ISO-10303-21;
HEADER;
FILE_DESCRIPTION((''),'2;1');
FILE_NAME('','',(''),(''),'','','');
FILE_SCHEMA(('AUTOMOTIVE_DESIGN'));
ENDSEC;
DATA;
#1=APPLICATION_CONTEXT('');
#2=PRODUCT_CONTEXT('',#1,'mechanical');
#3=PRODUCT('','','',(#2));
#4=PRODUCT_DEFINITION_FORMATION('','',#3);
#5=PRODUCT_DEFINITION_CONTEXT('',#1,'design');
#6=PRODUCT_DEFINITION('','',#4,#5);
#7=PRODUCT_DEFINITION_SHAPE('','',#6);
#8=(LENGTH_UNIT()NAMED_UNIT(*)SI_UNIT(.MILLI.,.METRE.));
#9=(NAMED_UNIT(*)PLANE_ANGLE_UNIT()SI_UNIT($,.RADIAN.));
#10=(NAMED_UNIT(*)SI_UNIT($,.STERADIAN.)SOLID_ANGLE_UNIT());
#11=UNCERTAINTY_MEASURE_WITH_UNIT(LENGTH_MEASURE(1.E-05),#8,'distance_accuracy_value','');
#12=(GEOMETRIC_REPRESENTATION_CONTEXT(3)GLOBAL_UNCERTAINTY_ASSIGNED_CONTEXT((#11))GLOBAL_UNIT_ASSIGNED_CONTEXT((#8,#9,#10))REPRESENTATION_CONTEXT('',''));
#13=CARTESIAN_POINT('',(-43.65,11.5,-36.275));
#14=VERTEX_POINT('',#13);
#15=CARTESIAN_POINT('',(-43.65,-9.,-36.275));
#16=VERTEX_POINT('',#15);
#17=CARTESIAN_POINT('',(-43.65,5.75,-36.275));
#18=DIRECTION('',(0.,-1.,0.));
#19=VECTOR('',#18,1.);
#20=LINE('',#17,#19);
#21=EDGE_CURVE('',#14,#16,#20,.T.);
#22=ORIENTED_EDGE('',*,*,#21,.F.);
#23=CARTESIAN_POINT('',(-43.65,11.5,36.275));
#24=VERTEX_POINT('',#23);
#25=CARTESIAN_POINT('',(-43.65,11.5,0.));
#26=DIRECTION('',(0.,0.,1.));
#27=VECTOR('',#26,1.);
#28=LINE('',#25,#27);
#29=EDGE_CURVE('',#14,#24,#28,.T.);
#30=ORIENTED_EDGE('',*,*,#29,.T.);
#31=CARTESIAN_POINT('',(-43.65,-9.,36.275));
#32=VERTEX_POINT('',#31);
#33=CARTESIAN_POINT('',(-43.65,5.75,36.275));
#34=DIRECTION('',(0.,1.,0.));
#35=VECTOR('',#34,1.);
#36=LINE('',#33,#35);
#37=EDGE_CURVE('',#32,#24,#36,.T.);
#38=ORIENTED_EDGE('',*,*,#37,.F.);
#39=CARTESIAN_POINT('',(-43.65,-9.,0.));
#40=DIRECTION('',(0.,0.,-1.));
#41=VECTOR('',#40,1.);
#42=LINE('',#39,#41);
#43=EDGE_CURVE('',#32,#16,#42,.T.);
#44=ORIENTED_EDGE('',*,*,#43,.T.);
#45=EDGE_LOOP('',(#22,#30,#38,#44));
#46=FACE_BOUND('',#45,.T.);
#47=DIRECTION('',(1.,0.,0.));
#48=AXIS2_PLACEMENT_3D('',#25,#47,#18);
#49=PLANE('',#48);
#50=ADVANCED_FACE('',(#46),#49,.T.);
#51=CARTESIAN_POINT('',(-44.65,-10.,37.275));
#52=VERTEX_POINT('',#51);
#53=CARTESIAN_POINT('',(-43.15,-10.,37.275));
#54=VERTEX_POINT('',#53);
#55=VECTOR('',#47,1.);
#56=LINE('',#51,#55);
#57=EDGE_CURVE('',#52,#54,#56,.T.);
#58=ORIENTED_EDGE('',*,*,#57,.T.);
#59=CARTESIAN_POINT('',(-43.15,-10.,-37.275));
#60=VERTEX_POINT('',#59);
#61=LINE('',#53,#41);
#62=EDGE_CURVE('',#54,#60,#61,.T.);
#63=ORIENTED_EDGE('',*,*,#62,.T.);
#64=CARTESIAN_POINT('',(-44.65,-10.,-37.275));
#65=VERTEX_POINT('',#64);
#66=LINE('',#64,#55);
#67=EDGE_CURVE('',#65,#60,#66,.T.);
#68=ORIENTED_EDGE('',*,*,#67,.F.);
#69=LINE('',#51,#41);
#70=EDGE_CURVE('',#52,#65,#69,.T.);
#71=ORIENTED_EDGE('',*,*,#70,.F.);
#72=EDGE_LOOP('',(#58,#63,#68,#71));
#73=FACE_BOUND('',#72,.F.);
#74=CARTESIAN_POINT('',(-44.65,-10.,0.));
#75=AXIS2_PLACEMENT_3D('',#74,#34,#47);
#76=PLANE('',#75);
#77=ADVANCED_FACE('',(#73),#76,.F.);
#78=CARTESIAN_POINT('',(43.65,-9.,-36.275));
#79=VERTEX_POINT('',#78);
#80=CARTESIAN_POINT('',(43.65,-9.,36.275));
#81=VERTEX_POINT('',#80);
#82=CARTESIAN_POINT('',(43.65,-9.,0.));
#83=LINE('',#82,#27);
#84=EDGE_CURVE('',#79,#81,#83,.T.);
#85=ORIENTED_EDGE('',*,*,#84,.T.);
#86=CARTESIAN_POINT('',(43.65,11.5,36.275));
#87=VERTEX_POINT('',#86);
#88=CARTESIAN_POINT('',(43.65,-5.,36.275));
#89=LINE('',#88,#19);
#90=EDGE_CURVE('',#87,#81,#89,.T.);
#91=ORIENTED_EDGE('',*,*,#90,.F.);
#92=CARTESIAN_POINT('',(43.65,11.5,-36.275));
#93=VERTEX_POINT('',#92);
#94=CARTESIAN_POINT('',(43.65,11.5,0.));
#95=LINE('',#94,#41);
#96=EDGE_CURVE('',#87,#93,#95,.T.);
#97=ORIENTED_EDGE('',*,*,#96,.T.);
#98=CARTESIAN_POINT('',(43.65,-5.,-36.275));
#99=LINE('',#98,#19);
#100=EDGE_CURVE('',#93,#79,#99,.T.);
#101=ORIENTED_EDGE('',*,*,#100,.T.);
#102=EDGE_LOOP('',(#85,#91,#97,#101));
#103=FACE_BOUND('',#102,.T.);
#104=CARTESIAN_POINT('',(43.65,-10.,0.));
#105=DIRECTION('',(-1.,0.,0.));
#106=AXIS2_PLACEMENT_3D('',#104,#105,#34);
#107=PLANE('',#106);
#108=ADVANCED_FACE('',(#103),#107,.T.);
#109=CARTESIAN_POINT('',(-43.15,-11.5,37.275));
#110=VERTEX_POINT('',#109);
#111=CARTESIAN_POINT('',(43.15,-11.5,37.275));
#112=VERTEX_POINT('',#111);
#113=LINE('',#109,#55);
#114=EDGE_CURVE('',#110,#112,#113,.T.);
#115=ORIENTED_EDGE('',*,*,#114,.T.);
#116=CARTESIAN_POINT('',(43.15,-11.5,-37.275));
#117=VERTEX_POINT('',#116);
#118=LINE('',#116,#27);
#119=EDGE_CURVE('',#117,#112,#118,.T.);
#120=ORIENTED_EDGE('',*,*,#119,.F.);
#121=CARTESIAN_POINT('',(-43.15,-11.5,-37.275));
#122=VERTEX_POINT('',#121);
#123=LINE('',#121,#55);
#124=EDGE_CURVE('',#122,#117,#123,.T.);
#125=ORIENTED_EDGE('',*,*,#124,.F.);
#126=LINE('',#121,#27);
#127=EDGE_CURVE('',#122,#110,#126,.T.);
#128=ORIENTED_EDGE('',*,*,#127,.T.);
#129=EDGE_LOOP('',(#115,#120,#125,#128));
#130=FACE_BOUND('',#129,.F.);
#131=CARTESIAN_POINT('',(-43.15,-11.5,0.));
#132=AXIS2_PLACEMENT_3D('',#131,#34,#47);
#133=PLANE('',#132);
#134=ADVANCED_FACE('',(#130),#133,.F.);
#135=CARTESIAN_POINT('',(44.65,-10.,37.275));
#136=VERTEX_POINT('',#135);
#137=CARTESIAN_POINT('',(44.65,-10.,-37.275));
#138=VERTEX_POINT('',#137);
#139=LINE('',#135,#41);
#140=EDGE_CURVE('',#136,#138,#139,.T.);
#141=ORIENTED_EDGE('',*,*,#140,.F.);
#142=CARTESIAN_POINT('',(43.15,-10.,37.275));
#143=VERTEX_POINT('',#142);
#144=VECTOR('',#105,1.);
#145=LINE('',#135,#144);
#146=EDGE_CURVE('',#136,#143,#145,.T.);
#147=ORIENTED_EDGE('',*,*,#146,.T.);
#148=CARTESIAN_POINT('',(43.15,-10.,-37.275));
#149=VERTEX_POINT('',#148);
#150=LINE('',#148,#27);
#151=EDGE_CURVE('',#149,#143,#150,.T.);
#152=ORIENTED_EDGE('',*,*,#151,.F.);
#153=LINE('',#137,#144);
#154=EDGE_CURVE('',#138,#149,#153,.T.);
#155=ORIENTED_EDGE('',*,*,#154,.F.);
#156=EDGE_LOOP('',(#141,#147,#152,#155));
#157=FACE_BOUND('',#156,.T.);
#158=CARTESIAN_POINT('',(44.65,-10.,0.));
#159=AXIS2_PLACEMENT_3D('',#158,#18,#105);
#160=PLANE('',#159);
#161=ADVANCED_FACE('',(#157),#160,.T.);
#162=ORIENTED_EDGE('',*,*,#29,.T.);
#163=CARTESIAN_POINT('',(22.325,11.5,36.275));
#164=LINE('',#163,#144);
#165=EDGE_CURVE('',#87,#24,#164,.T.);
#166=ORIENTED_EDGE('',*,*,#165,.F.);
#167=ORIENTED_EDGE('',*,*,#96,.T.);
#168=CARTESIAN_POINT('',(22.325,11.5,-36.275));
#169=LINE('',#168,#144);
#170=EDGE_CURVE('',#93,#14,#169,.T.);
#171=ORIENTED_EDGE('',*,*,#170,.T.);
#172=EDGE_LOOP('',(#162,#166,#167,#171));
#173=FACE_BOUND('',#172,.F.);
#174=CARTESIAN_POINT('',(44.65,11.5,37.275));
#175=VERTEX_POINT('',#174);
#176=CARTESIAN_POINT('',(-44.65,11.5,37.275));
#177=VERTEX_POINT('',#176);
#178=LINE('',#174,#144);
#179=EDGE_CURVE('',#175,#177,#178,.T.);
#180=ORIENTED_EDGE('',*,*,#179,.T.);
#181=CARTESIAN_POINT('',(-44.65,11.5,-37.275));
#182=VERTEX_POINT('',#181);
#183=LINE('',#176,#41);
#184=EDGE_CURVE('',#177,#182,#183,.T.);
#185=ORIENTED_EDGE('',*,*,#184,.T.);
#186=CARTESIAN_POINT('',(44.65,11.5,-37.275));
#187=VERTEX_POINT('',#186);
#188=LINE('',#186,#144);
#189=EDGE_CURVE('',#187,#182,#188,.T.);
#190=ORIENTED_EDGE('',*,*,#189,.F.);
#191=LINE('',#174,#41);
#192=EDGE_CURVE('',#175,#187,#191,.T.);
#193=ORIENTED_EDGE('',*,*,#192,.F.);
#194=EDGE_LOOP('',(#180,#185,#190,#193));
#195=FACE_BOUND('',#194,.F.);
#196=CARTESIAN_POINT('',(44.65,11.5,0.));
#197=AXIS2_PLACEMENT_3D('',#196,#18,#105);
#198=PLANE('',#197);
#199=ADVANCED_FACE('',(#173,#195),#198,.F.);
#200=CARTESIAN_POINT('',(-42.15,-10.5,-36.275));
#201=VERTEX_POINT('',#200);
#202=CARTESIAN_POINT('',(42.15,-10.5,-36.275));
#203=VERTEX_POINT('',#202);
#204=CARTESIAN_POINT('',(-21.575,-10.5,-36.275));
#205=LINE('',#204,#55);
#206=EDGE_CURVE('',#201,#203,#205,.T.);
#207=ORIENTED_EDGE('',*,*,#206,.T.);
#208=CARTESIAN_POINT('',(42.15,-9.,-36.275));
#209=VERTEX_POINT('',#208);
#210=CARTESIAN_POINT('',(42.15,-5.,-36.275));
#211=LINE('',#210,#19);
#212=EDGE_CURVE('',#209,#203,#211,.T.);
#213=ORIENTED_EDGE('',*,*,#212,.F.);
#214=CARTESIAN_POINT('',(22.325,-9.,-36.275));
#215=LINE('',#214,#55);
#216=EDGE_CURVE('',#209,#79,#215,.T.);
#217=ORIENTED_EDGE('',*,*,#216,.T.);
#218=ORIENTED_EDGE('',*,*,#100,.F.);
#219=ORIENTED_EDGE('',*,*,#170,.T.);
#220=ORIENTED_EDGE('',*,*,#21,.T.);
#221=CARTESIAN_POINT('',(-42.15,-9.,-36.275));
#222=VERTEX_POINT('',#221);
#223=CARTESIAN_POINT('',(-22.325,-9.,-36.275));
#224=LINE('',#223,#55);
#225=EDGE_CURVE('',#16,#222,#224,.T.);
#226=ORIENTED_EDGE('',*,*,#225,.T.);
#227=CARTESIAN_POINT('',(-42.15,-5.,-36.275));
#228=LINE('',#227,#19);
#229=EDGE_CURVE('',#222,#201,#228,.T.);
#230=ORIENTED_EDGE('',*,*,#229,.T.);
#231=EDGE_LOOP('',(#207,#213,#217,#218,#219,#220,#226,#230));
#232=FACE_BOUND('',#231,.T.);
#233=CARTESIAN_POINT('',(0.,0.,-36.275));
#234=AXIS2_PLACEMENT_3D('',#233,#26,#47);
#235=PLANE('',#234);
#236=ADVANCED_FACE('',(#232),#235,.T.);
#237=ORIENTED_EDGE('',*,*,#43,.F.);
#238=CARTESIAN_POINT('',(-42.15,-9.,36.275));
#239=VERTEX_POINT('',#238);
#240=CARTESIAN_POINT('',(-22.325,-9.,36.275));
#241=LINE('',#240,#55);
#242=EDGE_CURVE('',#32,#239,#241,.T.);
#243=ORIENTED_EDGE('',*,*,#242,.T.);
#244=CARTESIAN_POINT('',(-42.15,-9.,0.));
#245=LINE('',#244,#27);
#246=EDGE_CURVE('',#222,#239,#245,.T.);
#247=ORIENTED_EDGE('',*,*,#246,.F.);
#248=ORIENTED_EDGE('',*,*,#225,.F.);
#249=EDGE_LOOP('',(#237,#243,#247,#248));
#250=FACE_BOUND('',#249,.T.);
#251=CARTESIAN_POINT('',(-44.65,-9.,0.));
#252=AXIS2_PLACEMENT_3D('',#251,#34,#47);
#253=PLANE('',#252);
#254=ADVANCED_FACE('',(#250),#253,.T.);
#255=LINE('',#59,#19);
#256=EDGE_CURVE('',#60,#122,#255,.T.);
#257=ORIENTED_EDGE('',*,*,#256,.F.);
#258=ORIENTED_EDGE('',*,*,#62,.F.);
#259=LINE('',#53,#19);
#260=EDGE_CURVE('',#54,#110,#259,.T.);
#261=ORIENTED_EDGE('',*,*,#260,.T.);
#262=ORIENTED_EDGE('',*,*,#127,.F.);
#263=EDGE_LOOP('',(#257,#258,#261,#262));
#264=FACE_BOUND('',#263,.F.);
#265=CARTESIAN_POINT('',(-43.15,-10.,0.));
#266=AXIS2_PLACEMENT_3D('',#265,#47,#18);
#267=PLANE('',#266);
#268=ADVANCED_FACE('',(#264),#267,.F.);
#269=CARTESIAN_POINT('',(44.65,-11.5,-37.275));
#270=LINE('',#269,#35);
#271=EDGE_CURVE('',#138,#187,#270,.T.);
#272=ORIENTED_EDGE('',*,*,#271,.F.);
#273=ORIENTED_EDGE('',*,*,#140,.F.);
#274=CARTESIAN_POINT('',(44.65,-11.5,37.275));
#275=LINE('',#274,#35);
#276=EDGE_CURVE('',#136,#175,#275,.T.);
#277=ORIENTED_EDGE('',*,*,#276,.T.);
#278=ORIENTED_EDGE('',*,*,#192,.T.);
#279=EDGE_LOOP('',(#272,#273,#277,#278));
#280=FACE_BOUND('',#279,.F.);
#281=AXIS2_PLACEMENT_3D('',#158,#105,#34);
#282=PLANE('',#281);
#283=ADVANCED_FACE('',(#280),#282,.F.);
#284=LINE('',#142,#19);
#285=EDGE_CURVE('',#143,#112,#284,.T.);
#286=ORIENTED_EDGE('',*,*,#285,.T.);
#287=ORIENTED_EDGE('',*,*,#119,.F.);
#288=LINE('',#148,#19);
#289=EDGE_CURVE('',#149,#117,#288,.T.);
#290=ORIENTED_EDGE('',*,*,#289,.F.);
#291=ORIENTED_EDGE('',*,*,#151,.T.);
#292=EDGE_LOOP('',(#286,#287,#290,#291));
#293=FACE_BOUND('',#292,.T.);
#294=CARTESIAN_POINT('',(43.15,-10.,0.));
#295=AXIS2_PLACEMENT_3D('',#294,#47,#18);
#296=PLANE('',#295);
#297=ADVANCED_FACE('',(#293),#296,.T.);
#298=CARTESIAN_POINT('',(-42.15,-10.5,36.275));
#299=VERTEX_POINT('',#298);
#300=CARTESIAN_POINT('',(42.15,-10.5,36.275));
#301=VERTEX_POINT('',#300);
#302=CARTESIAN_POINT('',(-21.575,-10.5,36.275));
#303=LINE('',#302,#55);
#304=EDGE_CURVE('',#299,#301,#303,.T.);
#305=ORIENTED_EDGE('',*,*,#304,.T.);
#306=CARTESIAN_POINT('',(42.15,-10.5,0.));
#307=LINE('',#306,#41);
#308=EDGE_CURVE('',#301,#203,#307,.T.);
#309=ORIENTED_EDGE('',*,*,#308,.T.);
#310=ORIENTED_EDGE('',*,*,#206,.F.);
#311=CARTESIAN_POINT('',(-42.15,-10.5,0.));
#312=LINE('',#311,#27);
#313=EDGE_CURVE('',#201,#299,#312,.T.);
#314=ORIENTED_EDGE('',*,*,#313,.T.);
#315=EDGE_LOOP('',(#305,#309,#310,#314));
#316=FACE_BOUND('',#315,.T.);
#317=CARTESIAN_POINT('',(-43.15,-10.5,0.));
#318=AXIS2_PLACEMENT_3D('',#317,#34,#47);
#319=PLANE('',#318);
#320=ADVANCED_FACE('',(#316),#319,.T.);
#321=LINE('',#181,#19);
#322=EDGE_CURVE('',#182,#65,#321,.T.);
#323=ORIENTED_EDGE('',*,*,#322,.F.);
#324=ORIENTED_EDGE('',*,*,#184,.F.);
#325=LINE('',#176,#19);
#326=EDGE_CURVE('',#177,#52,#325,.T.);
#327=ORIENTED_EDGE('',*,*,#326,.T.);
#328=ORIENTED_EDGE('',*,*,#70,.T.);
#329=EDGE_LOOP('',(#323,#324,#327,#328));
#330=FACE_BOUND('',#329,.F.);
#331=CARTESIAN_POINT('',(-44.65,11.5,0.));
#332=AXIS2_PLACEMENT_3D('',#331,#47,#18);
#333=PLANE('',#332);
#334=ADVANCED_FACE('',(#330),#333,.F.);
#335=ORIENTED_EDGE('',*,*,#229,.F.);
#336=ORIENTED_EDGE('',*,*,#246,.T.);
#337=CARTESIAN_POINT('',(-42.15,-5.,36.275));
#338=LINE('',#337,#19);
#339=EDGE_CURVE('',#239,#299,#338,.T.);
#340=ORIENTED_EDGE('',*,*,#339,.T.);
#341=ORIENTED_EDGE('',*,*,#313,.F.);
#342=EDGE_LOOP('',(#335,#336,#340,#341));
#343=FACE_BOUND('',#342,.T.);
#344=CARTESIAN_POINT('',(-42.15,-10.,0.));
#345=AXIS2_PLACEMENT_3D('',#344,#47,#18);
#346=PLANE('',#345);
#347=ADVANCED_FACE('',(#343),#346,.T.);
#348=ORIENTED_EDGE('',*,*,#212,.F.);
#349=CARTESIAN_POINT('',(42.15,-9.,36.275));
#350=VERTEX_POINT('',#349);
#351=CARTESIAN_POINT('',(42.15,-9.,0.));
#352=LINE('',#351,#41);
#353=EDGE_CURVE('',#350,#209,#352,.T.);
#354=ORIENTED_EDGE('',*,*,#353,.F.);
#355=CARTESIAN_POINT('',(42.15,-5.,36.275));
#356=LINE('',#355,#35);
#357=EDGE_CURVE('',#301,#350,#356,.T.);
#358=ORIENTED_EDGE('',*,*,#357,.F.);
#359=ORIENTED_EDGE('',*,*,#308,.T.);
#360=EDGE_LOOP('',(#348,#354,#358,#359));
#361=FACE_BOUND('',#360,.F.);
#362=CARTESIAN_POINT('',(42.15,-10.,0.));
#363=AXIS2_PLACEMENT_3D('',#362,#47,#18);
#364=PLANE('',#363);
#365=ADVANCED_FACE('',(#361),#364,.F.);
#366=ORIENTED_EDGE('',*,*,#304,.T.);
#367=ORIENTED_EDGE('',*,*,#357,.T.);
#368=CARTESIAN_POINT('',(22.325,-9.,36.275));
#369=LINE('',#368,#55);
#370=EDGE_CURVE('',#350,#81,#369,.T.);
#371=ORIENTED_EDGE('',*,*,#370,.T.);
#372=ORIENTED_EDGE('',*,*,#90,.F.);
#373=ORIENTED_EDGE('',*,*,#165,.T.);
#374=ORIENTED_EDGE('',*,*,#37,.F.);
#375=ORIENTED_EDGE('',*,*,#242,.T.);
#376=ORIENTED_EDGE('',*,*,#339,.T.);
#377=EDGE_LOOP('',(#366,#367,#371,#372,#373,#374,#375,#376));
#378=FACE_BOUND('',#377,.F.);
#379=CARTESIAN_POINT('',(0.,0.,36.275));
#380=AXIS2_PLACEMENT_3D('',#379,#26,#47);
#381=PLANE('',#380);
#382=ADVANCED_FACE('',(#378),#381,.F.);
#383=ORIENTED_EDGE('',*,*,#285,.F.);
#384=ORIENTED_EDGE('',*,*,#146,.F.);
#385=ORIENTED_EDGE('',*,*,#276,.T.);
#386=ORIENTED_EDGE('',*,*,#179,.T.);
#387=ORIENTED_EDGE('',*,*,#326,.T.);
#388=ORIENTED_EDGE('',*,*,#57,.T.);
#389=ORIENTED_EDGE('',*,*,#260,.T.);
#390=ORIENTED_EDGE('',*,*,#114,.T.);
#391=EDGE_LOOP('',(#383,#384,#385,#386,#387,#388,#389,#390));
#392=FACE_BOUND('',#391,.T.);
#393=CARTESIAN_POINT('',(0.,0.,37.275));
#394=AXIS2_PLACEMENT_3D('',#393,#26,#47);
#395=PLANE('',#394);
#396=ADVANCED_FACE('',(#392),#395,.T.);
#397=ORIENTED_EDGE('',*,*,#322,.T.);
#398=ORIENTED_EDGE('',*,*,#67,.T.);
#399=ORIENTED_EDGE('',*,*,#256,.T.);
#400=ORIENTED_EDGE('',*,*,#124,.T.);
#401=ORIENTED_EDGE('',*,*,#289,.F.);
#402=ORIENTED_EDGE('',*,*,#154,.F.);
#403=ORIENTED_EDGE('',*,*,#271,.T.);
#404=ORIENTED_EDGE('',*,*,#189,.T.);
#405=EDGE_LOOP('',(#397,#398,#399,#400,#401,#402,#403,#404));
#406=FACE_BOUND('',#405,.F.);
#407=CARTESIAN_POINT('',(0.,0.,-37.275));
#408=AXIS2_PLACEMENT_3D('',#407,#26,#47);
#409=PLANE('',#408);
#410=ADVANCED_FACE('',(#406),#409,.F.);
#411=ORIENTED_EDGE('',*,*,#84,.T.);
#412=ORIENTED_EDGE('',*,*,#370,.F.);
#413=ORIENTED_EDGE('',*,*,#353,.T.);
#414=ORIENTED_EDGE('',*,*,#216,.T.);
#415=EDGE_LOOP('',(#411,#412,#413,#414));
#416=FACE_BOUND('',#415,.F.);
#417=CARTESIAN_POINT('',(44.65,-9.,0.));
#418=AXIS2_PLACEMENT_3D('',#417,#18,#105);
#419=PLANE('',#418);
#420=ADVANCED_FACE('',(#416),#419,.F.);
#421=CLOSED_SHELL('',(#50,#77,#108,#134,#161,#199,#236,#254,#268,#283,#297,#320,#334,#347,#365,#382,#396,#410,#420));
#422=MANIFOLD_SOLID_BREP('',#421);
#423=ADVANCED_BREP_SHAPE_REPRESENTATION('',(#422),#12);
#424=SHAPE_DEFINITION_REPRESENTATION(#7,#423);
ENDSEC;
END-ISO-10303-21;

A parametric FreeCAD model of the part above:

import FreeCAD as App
import Part
import Sketcher

V = App.Vector
Q = App.Units.Quantity


def faces_at(feature, points):
    """Names of the faces that lie closest to the given points."""
    faces = feature.Shape.Faces
    near = lambda p: min(range(len(faces)), key=lambda i: faces[i].distToShape(Part.Vertex(*p))[0])
    return sorted({f"Face{near(p) + 1}" for p in points})


def add_polygon(sketch, points):
    """Adds a closed chain of lines whose ends are joined by coincident constraints."""
    first, n = sketch.GeometryCount, len(points)
    for a, b in zip(points, points[1:] + points[:1]):
        sketch.addGeometry(Part.LineSegment(App.Vector(*a, 0), App.Vector(*b, 0)), False)
    for i in range(n):
        sketch.addConstraint(Sketcher.Constraint("Coincident", first + i, 2, first + (i + 1) % n, 1))

doc = App.newDocument("Part")
body = doc.addObject("PartDesign::Body", "Body")

# Sketch on XY plane
sketch1 = body.newObject("Sketcher::SketchObject", "Sketch")
sketch1.AttachmentSupport = (doc.getObject("XY_Plane"), [""])
sketch1.MapMode = "FlatFace"
add_polygon(sketch1, [(-43.1, -10), (-43.1, -11.5), (43.1, -11.5), (43.1, -10), (44.6, -10), (44.6, 11.5), (-44.6, 11.5), (-44.6, -10)])  # lines 0-7
sketch1.addConstraint([
    Sketcher.Constraint("Vertical", 0),
    Sketcher.Constraint("Horizontal", 1),
    Sketcher.Constraint("Vertical", 2),
    Sketcher.Constraint("Horizontal", 3),
    Sketcher.Constraint("Vertical", 4),
    Sketcher.Constraint("Horizontal", 5),
    Sketcher.Constraint("Vertical", 6),
    Sketcher.Constraint("Horizontal", 7),
    Sketcher.Constraint("Symmetric", 3, 2, 6, 2, -2),
    Sketcher.Constraint("Equal", 3, 7),
    Sketcher.Constraint("Equal", 7, 0),
    Sketcher.Constraint("DistanceX", 3, 1, 3, 2, Q("1.5 mm")),
    Sketcher.Constraint("DistanceX", 5, 2, 5, 1, Q("89.3 mm")),
    Sketcher.Constraint("DistanceY", 1, 2, 4, 2, Q("23 mm")),
    Sketcher.Constraint("DistanceY", 2, 2, -1, 1, Q("10 mm")),
])
pad1 = body.newObject("PartDesign::Pad", "Pad")
pad1.Profile = sketch1
pad1.Length = 74.55
pad1.Midplane = True
doc.recompute()

thickness = body.newObject("PartDesign::Thickness", "Thickness")
thickness.Base = (pad1, faces_at(pad1, [(14.883, 11.5, -12.425)]))
thickness.Value = 1
thickness.Reversed = True
thickness.Join = "Intersection"

doc.recompute()
